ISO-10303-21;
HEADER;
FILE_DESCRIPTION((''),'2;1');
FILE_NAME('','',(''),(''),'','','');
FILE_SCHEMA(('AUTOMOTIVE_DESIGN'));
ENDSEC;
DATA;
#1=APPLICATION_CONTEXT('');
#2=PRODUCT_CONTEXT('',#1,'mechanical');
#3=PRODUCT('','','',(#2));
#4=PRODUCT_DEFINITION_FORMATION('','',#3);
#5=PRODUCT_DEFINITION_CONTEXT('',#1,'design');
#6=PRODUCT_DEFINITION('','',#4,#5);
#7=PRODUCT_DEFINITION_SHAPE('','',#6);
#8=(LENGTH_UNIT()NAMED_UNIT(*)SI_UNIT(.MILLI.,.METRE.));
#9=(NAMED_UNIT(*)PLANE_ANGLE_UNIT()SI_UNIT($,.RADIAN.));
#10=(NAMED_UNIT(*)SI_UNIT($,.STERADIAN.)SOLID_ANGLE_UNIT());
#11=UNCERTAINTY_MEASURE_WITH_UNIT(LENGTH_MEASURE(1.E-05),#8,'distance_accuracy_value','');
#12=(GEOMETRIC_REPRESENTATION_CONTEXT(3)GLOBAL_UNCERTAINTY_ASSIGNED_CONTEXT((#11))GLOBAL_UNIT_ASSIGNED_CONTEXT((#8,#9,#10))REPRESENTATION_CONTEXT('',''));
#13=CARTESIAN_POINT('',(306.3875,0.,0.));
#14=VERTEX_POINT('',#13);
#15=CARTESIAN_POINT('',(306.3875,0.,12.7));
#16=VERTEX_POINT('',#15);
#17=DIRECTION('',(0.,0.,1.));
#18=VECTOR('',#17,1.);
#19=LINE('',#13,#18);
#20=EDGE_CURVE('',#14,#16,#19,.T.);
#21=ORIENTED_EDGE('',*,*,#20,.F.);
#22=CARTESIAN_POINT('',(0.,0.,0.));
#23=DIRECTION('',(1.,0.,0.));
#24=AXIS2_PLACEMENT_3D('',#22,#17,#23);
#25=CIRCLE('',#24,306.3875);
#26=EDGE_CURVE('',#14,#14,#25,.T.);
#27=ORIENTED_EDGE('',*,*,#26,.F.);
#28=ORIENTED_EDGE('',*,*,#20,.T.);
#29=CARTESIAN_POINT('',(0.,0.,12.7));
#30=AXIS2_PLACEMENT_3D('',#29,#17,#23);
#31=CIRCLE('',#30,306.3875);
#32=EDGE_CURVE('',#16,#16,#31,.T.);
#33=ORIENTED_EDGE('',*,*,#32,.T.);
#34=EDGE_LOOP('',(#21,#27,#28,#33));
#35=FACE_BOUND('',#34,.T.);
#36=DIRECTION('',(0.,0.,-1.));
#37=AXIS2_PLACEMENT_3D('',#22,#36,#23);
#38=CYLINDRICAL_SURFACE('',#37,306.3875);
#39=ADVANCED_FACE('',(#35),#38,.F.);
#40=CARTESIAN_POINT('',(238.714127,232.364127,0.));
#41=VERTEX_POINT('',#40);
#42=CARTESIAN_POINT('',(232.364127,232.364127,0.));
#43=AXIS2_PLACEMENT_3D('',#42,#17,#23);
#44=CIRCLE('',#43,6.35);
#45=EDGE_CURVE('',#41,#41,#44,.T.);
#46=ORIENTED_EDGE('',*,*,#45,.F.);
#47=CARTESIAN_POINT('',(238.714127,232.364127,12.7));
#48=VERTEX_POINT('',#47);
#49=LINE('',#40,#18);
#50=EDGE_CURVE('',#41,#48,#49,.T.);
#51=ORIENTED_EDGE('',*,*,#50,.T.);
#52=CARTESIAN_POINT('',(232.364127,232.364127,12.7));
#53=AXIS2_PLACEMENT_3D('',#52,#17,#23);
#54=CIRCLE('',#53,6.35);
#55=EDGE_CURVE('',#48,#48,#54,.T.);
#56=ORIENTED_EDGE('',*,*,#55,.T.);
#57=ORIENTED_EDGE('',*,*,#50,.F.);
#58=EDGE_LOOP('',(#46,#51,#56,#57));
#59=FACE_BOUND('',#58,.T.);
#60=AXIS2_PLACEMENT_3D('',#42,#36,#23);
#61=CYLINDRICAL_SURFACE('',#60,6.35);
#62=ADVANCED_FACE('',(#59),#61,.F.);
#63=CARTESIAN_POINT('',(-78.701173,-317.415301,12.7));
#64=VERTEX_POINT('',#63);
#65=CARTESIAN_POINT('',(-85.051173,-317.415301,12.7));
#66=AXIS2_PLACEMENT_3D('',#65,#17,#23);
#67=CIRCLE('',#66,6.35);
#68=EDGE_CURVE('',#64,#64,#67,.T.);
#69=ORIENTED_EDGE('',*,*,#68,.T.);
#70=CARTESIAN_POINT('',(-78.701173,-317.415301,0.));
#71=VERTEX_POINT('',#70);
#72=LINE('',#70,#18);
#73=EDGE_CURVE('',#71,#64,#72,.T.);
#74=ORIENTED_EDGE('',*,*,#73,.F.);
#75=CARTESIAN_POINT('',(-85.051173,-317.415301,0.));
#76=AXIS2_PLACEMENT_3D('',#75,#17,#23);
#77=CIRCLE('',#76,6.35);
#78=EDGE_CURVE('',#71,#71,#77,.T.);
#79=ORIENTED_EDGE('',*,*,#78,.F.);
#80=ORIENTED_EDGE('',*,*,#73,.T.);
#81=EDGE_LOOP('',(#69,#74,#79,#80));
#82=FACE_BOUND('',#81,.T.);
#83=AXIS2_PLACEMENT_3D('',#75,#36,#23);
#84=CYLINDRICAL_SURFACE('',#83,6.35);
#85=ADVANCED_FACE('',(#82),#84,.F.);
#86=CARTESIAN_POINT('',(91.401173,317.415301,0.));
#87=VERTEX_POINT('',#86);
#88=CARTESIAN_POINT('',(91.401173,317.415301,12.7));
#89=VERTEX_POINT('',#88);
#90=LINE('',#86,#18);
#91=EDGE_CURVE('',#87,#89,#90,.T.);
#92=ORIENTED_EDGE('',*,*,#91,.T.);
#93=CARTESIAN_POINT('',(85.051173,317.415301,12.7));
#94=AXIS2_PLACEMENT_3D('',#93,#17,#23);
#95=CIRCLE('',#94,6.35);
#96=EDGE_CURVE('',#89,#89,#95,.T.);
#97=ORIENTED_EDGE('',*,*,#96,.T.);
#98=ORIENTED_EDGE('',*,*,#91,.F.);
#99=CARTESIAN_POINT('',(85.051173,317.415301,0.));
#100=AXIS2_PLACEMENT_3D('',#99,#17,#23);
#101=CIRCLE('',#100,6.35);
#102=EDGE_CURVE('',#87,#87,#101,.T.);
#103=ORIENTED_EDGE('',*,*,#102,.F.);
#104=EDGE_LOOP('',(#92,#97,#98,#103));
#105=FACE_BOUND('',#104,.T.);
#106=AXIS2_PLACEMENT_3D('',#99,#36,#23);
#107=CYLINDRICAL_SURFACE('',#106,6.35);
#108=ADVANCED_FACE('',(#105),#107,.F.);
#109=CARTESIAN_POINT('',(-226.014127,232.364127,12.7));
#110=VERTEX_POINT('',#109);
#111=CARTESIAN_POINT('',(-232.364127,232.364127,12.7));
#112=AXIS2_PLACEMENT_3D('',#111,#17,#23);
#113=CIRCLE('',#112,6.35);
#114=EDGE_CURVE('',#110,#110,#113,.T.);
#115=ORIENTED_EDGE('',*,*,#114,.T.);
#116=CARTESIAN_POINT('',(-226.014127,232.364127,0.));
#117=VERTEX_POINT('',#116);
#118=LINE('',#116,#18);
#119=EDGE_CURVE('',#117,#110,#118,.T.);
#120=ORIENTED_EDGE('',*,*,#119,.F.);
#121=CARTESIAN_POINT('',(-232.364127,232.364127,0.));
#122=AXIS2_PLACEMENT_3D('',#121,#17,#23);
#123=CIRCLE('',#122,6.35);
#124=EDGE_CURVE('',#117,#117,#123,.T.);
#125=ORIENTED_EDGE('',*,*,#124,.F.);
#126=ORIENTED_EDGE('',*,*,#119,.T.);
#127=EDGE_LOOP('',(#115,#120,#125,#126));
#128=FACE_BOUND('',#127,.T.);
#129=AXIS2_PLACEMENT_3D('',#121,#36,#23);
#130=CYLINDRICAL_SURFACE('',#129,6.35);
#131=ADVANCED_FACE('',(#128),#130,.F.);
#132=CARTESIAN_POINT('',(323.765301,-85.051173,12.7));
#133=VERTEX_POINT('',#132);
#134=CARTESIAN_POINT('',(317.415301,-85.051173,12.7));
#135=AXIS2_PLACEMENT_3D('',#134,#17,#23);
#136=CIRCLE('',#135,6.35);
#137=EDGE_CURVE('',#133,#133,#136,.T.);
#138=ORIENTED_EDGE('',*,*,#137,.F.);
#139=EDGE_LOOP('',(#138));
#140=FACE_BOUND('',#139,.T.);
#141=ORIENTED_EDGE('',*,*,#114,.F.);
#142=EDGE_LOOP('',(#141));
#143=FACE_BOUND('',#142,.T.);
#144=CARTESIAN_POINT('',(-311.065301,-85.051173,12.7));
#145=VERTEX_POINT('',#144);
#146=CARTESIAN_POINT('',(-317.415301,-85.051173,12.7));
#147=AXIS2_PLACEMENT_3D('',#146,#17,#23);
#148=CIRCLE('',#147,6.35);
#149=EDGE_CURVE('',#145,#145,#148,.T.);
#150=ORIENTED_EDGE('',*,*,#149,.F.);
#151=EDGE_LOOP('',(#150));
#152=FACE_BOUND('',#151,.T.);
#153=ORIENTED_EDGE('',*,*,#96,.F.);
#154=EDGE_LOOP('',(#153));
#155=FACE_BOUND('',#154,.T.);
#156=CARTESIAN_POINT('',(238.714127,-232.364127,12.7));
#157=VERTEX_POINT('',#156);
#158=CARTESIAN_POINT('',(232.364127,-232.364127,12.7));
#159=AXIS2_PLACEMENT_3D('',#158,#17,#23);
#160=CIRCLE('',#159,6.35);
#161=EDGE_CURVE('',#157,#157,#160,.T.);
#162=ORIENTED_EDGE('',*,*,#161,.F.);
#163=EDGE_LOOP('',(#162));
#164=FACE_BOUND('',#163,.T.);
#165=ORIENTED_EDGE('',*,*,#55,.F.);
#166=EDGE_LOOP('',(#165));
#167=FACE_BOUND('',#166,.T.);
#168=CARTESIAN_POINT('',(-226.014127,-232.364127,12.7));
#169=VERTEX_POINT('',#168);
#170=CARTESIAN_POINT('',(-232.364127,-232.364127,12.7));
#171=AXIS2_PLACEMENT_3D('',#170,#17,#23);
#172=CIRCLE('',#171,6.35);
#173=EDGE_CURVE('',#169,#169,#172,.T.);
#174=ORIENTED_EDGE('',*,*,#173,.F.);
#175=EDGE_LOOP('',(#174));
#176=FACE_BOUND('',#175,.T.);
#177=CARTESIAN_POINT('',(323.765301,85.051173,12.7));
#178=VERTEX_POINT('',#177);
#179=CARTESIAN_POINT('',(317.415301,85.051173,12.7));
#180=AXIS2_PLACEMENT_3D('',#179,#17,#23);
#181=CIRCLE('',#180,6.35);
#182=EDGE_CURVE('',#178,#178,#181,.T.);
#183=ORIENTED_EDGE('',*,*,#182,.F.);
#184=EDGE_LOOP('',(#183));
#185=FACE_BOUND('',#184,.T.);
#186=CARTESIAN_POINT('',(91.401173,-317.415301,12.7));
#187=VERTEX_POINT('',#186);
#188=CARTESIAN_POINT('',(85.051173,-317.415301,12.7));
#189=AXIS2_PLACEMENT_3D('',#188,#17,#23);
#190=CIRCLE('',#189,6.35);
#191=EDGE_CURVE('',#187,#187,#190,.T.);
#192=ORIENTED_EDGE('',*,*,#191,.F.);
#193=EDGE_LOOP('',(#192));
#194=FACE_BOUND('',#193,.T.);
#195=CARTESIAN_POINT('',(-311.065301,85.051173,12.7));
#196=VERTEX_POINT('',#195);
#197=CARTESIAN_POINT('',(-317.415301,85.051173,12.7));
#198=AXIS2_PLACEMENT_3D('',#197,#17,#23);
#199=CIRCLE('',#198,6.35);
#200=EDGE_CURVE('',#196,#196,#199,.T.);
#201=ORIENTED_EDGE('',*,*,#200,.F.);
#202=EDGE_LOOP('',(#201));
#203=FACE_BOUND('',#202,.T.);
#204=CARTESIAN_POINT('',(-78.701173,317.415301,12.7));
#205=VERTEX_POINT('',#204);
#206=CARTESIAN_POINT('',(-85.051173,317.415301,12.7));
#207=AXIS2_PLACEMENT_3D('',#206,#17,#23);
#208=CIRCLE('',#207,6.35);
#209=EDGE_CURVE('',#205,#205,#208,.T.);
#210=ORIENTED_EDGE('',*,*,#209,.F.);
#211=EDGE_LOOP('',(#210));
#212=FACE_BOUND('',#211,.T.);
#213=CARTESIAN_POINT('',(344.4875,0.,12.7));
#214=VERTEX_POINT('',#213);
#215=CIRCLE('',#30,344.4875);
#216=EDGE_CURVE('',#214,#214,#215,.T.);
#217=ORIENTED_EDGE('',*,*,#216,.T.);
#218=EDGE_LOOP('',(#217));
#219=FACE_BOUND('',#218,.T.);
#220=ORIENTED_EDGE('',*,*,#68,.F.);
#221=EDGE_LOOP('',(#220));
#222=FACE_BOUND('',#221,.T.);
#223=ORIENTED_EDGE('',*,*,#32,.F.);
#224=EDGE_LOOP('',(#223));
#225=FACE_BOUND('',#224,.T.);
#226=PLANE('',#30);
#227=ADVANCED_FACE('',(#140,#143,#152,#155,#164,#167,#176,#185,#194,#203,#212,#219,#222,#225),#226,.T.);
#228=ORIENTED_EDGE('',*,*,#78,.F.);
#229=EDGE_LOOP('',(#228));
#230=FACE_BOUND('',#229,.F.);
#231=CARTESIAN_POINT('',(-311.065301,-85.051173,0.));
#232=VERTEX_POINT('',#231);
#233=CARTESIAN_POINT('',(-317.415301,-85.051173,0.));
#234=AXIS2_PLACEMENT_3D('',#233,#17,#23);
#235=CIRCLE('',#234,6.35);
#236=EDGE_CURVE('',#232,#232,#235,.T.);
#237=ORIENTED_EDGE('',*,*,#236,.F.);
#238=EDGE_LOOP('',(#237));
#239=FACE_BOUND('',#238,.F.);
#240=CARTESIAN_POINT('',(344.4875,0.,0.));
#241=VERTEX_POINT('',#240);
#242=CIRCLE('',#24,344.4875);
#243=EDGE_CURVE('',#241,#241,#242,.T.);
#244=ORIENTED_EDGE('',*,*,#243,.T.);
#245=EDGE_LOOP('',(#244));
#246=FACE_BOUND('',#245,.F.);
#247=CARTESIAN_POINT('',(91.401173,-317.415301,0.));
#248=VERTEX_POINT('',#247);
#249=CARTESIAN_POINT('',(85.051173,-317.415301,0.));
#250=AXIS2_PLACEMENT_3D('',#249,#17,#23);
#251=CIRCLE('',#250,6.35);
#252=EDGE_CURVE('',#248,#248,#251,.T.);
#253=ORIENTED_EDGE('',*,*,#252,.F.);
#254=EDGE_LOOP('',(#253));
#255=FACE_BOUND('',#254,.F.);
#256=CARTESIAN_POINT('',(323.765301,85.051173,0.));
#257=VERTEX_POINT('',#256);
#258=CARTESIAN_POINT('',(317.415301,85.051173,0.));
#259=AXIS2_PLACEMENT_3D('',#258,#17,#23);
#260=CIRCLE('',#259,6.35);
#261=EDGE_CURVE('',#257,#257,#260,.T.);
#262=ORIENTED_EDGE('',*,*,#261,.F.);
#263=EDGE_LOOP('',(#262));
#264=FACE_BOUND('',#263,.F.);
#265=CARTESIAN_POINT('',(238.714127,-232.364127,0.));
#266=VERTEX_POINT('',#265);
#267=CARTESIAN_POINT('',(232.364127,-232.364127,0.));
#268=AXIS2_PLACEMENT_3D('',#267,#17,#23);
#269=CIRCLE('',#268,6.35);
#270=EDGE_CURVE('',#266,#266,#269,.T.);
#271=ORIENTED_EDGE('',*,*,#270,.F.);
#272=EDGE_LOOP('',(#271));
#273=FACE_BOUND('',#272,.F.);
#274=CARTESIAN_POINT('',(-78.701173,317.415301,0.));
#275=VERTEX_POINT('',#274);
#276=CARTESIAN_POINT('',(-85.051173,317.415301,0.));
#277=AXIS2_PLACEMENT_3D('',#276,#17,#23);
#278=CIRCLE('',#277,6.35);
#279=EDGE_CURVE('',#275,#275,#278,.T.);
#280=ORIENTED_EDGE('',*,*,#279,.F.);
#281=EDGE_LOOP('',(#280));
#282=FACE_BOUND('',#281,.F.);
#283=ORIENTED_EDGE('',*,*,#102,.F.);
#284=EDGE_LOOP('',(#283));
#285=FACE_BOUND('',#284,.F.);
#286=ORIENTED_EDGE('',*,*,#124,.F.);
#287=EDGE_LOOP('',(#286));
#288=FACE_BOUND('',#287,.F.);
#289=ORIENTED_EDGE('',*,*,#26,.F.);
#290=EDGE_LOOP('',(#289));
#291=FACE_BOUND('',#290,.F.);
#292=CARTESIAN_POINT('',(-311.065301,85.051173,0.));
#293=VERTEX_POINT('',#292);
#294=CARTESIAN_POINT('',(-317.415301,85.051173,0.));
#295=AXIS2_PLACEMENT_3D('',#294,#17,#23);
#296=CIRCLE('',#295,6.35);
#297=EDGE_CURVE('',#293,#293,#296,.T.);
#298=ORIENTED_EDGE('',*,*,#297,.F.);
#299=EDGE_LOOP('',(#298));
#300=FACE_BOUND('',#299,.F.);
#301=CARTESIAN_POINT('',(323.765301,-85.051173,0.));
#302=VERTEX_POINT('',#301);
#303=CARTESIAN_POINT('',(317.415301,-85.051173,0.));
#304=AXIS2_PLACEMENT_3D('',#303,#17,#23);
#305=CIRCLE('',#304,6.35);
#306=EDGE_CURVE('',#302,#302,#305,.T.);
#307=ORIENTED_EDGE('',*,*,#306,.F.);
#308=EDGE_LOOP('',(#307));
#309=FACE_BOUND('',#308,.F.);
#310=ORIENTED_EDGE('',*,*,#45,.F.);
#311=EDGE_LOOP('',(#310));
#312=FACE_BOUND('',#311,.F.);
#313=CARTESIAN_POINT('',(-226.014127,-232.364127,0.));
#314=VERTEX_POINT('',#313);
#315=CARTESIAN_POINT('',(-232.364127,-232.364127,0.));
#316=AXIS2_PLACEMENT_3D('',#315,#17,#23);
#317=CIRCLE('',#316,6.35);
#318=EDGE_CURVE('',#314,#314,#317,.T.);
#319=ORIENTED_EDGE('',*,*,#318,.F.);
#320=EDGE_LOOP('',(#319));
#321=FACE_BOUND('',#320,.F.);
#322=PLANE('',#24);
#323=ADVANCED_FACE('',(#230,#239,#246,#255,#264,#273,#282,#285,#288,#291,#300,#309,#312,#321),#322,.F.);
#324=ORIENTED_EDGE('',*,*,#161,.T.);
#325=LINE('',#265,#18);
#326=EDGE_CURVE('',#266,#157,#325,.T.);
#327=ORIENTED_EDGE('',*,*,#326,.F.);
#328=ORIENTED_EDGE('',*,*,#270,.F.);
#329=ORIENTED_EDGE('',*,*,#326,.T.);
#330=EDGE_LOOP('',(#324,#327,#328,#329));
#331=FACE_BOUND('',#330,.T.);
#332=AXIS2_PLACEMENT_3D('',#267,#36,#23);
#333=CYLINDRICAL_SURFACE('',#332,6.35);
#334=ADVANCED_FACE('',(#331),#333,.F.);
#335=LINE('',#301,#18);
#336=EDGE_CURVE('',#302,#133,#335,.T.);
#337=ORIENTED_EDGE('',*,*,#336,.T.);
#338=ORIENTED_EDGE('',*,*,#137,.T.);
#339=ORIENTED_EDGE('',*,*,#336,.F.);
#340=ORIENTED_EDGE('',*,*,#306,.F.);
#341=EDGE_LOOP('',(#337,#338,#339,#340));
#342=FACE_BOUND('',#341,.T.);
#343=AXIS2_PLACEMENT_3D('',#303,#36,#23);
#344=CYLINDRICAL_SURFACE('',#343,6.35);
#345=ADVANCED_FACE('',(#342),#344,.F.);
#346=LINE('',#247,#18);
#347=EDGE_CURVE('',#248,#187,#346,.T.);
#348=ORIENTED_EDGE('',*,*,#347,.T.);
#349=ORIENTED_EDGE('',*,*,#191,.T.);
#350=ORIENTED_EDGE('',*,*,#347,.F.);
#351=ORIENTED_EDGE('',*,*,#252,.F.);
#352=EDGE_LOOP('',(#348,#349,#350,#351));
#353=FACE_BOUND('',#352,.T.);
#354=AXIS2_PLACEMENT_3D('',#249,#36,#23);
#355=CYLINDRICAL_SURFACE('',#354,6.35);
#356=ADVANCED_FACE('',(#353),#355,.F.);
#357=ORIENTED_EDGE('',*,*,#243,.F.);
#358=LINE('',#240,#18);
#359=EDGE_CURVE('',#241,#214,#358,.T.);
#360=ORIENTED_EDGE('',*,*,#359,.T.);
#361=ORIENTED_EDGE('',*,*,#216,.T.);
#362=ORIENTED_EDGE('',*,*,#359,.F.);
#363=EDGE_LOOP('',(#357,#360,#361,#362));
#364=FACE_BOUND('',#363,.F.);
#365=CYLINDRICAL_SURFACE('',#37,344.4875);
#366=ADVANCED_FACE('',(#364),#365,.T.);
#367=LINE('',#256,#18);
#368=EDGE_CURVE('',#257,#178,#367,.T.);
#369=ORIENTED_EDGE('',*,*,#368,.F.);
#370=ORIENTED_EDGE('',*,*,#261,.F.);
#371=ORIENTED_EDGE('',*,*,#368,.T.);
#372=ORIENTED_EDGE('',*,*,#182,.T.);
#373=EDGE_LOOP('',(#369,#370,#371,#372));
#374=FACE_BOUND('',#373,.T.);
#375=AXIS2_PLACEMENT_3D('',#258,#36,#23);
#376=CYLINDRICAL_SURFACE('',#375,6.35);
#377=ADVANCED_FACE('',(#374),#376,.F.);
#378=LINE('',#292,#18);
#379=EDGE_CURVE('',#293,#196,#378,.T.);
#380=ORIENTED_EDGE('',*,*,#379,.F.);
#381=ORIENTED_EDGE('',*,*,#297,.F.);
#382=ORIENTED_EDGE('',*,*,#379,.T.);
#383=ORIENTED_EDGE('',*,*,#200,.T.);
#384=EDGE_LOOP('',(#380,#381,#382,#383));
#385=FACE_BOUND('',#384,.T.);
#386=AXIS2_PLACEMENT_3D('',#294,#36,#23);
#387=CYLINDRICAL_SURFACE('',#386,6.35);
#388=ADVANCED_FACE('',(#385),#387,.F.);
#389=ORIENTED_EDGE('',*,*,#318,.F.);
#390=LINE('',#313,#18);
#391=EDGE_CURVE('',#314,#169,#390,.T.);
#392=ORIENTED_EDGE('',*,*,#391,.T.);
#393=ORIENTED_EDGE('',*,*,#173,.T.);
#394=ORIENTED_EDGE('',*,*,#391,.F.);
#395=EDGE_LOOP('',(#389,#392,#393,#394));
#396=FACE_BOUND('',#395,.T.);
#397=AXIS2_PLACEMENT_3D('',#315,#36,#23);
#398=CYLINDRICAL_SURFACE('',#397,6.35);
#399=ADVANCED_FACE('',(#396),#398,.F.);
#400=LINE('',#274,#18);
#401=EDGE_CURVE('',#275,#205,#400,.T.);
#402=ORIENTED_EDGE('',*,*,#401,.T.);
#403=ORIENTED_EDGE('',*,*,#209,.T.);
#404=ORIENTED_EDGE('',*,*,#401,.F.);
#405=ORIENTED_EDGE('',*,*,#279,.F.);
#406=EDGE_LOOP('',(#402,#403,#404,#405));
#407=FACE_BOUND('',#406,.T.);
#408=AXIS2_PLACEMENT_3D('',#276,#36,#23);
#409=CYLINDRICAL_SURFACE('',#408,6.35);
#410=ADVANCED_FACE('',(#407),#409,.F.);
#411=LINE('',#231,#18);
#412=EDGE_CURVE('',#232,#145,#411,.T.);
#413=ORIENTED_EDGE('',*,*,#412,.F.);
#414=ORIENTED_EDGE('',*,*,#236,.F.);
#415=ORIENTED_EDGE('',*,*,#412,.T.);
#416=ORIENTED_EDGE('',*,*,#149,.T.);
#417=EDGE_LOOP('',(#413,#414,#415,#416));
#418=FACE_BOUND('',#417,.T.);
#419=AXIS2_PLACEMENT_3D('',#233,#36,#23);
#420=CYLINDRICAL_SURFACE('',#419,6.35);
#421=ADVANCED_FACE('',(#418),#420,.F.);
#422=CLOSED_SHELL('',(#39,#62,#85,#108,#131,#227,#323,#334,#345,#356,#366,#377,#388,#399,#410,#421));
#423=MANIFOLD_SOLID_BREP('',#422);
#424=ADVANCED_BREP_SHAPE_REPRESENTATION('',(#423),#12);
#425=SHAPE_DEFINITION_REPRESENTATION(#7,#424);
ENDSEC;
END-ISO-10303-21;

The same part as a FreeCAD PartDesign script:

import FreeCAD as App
import Part
import Sketcher
Q = App.Units.Quantity

doc = App.newDocument("Part")
body = doc.addObject("PartDesign::Body", "Body")

# Sketch on XY plane
sketch1 = body.newObject("Sketcher::SketchObject", "Sketch")
sketch1.AttachmentSupport = (doc.getObject("XY_Plane"), [""])
sketch1.MapMode = "FlatFace"
sketch1.addGeometry(Part.Circle(App.Vector(0, 0, 0), App.Vector(0, 0, 1), 344.4875), False)
sketch1.addGeometry(Part.Circle(App.Vector(-232.364127, -232.364127, 0), App.Vector(0, 0, 1), 6.35), False)
sketch1.addGeometry(Part.Circle(App.Vector(-85.051173, -317.415301, 0), App.Vector(0, 0, 1), 6.35), False)
sketch1.addGeometry(Part.Circle(App.Vector(-317.415301, -85.051173, 0), App.Vector(0, 0, 1), 6.35), False)
sketch1.addGeometry(Part.Circle(App.Vector(85.051173, -317.415301, 0), App.Vector(0, 0, 1), 6.35), False)
sketch1.addGeometry(Part.Circle(App.Vector(232.364127, -232.364127, 0), App.Vector(0, 0, 1), 6.35), False)
sketch1.addGeometry(Part.Circle(App.Vector(317.415301, -85.051173, 0), App.Vector(0, 0, 1), 6.35), False)
sketch1.addGeometry(Part.Circle(App.Vector(-317.415301, 85.051173, 0), App.Vector(0, 0, 1), 6.35), False)
sketch1.addGeometry(Part.Circle(App.Vector(-232.364127, 232.364127, 0), App.Vector(0, 0, 1), 6.35), False)
sketch1.addGeometry(Part.Circle(App.Vector(-85.051173, 317.415301, 0), App.Vector(0, 0, 1), 6.35), False)
sketch1.addGeometry(Part.Circle(App.Vector(0, 0, 0), App.Vector(0, 0, 1), 306.3875), False)
sketch1.addGeometry(Part.Circle(App.Vector(317.415301, 85.051173, 0), App.Vector(0, 0, 1), 6.35), False)
sketch1.addGeometry(Part.Circle(App.Vector(85.051173, 317.415301, 0), App.Vector(0, 0, 1), 6.35), False)
sketch1.addGeometry(Part.Circle(App.Vector(232.364127, 232.364127, 0), App.Vector(0, 0, 1), 6.35), False)
sketch1.addConstraint(Sketcher.Constraint("Coincident", 0, 3, -1, 1))
sketch1.addConstraint(Sketcher.Constraint("Coincident", 10, 3, -1, 1))
sketch1.addConstraint(Sketcher.Constraint("Equal", 1, 2))
sketch1.addConstraint(Sketcher.Constraint("Equal", 2, 3))
sketch1.addConstraint(Sketcher.Constraint("Equal", 3, 4))
sketch1.addConstraint(Sketcher.Constraint("Equal", 4, 5))
sketch1.addConstraint(Sketcher.Constraint("Equal", 5, 6))
sketch1.addConstraint(Sketcher.Constraint("Equal", 6, 7))
sketch1.addConstraint(Sketcher.Constraint("Equal", 7, 8))
sketch1.addConstraint(Sketcher.Constraint("Equal", 8, 9))
sketch1.addConstraint(Sketcher.Constraint("Equal", 9, 11))
sketch1.addConstraint(Sketcher.Constraint("Equal", 11, 12))
sketch1.addConstraint(Sketcher.Constraint("Equal", 12, 13))
sketch1.addConstraint(Sketcher.Constraint("Symmetric", 6, 3, 7, 3, -1, 1))
sketch1.addConstraint(Sketcher.Constraint("Symmetric", 5, 3, 8, 3, -1, 1))
sketch1.addConstraint(Sketcher.Constraint("Symmetric", 4, 3, 9, 3, -1, 1))
sketch1.addConstraint(Sketcher.Constraint("Symmetric", 3, 3, 11, 3, -1, 1))
sketch1.addConstraint(Sketcher.Constraint("Symmetric", 2, 3, 12, 3, -1, 1))
sketch1.addConstraint(Sketcher.Constraint("Symmetric", 1, 3, 13, 3, -1, 1))
sketch1.addConstraint(Sketcher.Constraint("Symmetric", 2, 3, 4, 3, -2))
sketch1.addConstraint(Sketcher.Constraint("Symmetric", 1, 3, 5, 3, -2))
sketch1.addConstraint(Sketcher.Constraint("Symmetric", 3, 3, 6, 3, -2))
sketch1.addConstraint(Sketcher.Constraint("Diameter", 1, Q("0.5 in")))
sketch1.addConstraint(Sketcher.Constraint("Diameter", 0, Q("27.125 in")))
sketch1.addConstraint(Sketcher.Constraint("Diameter", 10, Q("24.125 in")))
sketch1.addConstraint(Sketcher.Constraint("DistanceY", 2, 3, -1, 1, 317.415301))
sketch1.addConstraint(Sketcher.Constraint("DistanceX", 3, 3, -1, 1, 317.415301))
sketch1.addConstraint(Sketcher.Constraint("DistanceX", 1, 3, 4, 3, 317.4153))
sketch1.addConstraint(Sketcher.Constraint("DistanceY", 1, 3, 7, 3, 317.4153))
sketch1.addConstraint(Sketcher.Constraint("DistanceX", 3, 3, 2, 3, 232.364128))
sketch1.addConstraint(Sketcher.Constraint("DistanceY", 2, 3, 3, 3, 232.364128))
pad1 = body.newObject("PartDesign::Pad", "Pad")
pad1.Profile = sketch1
pad1.Length = Q("0.5 in")

doc.recompute()
